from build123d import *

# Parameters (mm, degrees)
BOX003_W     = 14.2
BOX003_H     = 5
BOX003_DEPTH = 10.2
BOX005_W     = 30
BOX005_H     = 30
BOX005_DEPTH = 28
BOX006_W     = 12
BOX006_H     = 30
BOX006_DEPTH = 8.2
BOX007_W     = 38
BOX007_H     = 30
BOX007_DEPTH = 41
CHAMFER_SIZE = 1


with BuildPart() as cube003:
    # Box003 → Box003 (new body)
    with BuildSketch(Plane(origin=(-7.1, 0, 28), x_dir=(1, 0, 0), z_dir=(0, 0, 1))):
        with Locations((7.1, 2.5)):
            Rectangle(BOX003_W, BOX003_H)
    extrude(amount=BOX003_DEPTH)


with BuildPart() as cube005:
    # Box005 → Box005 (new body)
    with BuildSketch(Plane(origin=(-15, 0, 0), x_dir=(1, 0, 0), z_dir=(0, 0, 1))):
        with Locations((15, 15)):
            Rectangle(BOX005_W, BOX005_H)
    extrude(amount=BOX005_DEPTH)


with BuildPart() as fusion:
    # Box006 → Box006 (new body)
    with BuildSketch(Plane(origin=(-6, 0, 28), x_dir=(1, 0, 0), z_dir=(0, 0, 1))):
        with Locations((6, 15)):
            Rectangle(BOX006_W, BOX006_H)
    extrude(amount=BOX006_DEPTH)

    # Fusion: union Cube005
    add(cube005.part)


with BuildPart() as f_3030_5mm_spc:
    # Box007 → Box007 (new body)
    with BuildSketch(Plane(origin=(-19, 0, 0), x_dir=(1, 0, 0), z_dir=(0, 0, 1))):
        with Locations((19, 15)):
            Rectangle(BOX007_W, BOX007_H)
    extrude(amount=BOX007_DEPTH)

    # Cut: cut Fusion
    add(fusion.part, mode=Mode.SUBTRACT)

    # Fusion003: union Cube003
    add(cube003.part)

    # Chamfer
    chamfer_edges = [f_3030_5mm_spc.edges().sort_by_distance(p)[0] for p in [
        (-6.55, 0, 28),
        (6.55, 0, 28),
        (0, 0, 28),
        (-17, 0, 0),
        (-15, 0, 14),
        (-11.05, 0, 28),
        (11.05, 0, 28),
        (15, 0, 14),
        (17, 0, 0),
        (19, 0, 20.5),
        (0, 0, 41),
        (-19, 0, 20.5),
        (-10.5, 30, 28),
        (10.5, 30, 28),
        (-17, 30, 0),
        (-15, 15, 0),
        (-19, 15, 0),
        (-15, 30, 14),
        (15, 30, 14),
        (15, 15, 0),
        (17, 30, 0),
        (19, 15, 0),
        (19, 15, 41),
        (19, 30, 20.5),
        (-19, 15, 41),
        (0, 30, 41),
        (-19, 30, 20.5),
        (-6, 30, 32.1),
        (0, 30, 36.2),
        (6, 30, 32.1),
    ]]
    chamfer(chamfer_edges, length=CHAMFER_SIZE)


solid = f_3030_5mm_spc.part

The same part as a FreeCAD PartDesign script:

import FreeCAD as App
import Part
import Sketcher

V = App.Vector


def edges_at(feature, points):
    """Names of the edges that pass closest to the given points."""
    edges = feature.Shape.Edges
    near = lambda p: min(range(len(edges)), key=lambda i: edges[i].distToShape(Part.Vertex(*p))[0])
    return sorted({f"Edge{near(p) + 1}" for p in points})


def add_polygon(sketch, points):
    """Adds a closed chain of lines whose ends are joined by coincident constraints."""
    first, n = sketch.GeometryCount, len(points)
    for a, b in zip(points, points[1:] + points[:1]):
        sketch.addGeometry(Part.LineSegment(App.Vector(*a, 0), App.Vector(*b, 0)), False)
    for i in range(n):
        sketch.addConstraint(Sketcher.Constraint("Coincident", first + i, 2, first + (i + 1) % n, 1))

doc = App.newDocument("Part")
body = doc.addObject("PartDesign::Body", "Body")

sketch1 = body.newObject("Sketcher::SketchObject", "Sketch")
sketch1.AttachmentSupport = (doc.getObject("XY_Plane"), [""])
sketch1.MapMode = "FlatFace"
sketch1.AttachmentOffset = App.Placement(V(0, 0, 28), App.Rotation())
add_polygon(sketch1, [(-7.1, 5), (-7.1, 0), (7.1, 0), (7.1, 5)])
sketch1.addConstraint([
    Sketcher.Constraint("Vertical", 0),
    Sketcher.Constraint("Horizontal", 1),
    Sketcher.Constraint("Vertical", 2),
    Sketcher.Constraint("Horizontal", 3),
    Sketcher.Constraint("Symmetric", 0, 2, 1, 2, -1, 1),
    Sketcher.Constraint("DistanceY", 0, 2, 0, 1, 5.0),
    Sketcher.Constraint("DistanceX", 1, 1, 1, 2, 14.2),
])
pad1 = body.newObject("PartDesign::Pad", "Pad")
pad1.Profile = sketch1
pad1.Length = 10.2
body2 = doc.addObject("PartDesign::Body", "Body001")

sketch2 = body2.newObject("Sketcher::SketchObject", "Sketch001")
sketch2.AttachmentSupport = (doc.getObject("XY_Plane001"), [""])
sketch2.MapMode = "FlatFace"
add_polygon(sketch2, [(-15, 30), (-15, 0), (15, 0), (15, 30)])
sketch2.addConstraint([
    Sketcher.Constraint("Vertical", 0),
    Sketcher.Constraint("Horizontal", 1),
    Sketcher.Constraint("Vertical", 2),
    Sketcher.Constraint("Horizontal", 3),
    Sketcher.Constraint("Symmetric", 0, 2, 1, 2, -1, 1),
    Sketcher.Constraint("Equal", 3, 0),
    Sketcher.Constraint("DistanceX", 1, 1, 1, 2, 30.0),
])
pad2 = body2.newObject("PartDesign::Pad", "Pad001")
pad2.Profile = sketch2
pad2.Length = 28
body3 = doc.addObject("PartDesign::Body", "Body002")

sketch3 = body3.newObject("Sketcher::SketchObject", "Sketch002")
sketch3.AttachmentSupport = (doc.getObject("XY_Plane002"), [""])
sketch3.MapMode = "FlatFace"
sketch3.AttachmentOffset = App.Placement(V(0, 0, 28), App.Rotation())
add_polygon(sketch3, [(-6, 30), (-6, 0), (6, 0), (6, 30)])
sketch3.addConstraint([
    Sketcher.Constraint("Vertical", 0),
    Sketcher.Constraint("Horizontal", 1),
    Sketcher.Constraint("Vertical", 2),
    Sketcher.Constraint("Horizontal", 3),
    Sketcher.Constraint("Symmetric", 0, 2, 1, 2, -1, 1),
    Sketcher.Constraint("DistanceX", 1, 1, 1, 2, 12.0),
    Sketcher.Constraint("DistanceY", 0, 2, 0, 1, 30.0),
])
pad3 = body3.newObject("PartDesign::Pad", "Pad002")
pad3.Profile = sketch3
pad3.Length = 8.2
doc.recompute()

boolean = body3.newObject("PartDesign::Boolean", "Boolean")
boolean.Type = "Fuse"
boolean.addObjects([body2])
body4 = doc.addObject("PartDesign::Body", "Body003")

sketch4 = body4.newObject("Sketcher::SketchObject", "Sketch003")
sketch4.AttachmentSupport = (doc.getObject("XY_Plane003"), [""])
sketch4.MapMode = "FlatFace"
add_polygon(sketch4, [(-19, 30), (-19, 0), (19, 0), (19, 30)])
sketch4.addConstraint([
    Sketcher.Constraint("Vertical", 0),
    Sketcher.Constraint("Horizontal", 1),
    Sketcher.Constraint("Vertical", 2),
    Sketcher.Constraint("Horizontal", 3),
    Sketcher.Constraint("Symmetric", 0, 2, 1, 2, -1, 1),
    Sketcher.Constraint("DistanceX", 1, 1, 1, 2, 38.0),
    Sketcher.Constraint("DistanceY", 0, 2, 0, 1, 30.0),
])
pad4 = body4.newObject("PartDesign::Pad", "Pad003")
pad4.Profile = sketch4
pad4.Length = 41
doc.recompute()

boolean2 = body4.newObject("PartDesign::Boolean", "Boolean001")
boolean2.Type = "Cut"
boolean2.addObjects([body3])
doc.recompute()

boolean3 = body4.newObject("PartDesign::Boolean", "Boolean002")
boolean3.Type = "Fuse"
boolean3.addObjects([body])
doc.recompute()

chamfer = body4.newObject("PartDesign::Chamfer", "Chamfer")
chamfer.Base = (boolean3, edges_at(boolean3, [
    (0, 0, 28),
    (0, 0, 28),
    (0, 0, 28),
    (-17, 0, 0),
    (-15, 0, 14),
    (0, 0, 28),
    (0, 0, 28),
    (15, 0, 14),
    (17, 0, 0),
    (19, 0, 20.5),
    (0, 0, 41),
    (-19, 0, 20.5),
    (-10.5, 30, 28),
    (10.5, 30, 28),
    (-17, 30, 0),
    (-15, 15, 0),
    (-19, 15, 0),
    (-15, 30, 14),
    (15, 30, 14),
    (15, 15, 0),
    (17, 30, 0),
    (19, 15, 0),
    (19, 15, 41),
    (19, 30, 20.5),
    (-19, 15, 41),
    (0, 30, 41),
    (-19, 30, 20.5),
    (-6, 30, 32.1),
    (0, 30, 36.2),
    (6, 30, 32.1),
]))
chamfer.Size = 1

doc.recompute()
